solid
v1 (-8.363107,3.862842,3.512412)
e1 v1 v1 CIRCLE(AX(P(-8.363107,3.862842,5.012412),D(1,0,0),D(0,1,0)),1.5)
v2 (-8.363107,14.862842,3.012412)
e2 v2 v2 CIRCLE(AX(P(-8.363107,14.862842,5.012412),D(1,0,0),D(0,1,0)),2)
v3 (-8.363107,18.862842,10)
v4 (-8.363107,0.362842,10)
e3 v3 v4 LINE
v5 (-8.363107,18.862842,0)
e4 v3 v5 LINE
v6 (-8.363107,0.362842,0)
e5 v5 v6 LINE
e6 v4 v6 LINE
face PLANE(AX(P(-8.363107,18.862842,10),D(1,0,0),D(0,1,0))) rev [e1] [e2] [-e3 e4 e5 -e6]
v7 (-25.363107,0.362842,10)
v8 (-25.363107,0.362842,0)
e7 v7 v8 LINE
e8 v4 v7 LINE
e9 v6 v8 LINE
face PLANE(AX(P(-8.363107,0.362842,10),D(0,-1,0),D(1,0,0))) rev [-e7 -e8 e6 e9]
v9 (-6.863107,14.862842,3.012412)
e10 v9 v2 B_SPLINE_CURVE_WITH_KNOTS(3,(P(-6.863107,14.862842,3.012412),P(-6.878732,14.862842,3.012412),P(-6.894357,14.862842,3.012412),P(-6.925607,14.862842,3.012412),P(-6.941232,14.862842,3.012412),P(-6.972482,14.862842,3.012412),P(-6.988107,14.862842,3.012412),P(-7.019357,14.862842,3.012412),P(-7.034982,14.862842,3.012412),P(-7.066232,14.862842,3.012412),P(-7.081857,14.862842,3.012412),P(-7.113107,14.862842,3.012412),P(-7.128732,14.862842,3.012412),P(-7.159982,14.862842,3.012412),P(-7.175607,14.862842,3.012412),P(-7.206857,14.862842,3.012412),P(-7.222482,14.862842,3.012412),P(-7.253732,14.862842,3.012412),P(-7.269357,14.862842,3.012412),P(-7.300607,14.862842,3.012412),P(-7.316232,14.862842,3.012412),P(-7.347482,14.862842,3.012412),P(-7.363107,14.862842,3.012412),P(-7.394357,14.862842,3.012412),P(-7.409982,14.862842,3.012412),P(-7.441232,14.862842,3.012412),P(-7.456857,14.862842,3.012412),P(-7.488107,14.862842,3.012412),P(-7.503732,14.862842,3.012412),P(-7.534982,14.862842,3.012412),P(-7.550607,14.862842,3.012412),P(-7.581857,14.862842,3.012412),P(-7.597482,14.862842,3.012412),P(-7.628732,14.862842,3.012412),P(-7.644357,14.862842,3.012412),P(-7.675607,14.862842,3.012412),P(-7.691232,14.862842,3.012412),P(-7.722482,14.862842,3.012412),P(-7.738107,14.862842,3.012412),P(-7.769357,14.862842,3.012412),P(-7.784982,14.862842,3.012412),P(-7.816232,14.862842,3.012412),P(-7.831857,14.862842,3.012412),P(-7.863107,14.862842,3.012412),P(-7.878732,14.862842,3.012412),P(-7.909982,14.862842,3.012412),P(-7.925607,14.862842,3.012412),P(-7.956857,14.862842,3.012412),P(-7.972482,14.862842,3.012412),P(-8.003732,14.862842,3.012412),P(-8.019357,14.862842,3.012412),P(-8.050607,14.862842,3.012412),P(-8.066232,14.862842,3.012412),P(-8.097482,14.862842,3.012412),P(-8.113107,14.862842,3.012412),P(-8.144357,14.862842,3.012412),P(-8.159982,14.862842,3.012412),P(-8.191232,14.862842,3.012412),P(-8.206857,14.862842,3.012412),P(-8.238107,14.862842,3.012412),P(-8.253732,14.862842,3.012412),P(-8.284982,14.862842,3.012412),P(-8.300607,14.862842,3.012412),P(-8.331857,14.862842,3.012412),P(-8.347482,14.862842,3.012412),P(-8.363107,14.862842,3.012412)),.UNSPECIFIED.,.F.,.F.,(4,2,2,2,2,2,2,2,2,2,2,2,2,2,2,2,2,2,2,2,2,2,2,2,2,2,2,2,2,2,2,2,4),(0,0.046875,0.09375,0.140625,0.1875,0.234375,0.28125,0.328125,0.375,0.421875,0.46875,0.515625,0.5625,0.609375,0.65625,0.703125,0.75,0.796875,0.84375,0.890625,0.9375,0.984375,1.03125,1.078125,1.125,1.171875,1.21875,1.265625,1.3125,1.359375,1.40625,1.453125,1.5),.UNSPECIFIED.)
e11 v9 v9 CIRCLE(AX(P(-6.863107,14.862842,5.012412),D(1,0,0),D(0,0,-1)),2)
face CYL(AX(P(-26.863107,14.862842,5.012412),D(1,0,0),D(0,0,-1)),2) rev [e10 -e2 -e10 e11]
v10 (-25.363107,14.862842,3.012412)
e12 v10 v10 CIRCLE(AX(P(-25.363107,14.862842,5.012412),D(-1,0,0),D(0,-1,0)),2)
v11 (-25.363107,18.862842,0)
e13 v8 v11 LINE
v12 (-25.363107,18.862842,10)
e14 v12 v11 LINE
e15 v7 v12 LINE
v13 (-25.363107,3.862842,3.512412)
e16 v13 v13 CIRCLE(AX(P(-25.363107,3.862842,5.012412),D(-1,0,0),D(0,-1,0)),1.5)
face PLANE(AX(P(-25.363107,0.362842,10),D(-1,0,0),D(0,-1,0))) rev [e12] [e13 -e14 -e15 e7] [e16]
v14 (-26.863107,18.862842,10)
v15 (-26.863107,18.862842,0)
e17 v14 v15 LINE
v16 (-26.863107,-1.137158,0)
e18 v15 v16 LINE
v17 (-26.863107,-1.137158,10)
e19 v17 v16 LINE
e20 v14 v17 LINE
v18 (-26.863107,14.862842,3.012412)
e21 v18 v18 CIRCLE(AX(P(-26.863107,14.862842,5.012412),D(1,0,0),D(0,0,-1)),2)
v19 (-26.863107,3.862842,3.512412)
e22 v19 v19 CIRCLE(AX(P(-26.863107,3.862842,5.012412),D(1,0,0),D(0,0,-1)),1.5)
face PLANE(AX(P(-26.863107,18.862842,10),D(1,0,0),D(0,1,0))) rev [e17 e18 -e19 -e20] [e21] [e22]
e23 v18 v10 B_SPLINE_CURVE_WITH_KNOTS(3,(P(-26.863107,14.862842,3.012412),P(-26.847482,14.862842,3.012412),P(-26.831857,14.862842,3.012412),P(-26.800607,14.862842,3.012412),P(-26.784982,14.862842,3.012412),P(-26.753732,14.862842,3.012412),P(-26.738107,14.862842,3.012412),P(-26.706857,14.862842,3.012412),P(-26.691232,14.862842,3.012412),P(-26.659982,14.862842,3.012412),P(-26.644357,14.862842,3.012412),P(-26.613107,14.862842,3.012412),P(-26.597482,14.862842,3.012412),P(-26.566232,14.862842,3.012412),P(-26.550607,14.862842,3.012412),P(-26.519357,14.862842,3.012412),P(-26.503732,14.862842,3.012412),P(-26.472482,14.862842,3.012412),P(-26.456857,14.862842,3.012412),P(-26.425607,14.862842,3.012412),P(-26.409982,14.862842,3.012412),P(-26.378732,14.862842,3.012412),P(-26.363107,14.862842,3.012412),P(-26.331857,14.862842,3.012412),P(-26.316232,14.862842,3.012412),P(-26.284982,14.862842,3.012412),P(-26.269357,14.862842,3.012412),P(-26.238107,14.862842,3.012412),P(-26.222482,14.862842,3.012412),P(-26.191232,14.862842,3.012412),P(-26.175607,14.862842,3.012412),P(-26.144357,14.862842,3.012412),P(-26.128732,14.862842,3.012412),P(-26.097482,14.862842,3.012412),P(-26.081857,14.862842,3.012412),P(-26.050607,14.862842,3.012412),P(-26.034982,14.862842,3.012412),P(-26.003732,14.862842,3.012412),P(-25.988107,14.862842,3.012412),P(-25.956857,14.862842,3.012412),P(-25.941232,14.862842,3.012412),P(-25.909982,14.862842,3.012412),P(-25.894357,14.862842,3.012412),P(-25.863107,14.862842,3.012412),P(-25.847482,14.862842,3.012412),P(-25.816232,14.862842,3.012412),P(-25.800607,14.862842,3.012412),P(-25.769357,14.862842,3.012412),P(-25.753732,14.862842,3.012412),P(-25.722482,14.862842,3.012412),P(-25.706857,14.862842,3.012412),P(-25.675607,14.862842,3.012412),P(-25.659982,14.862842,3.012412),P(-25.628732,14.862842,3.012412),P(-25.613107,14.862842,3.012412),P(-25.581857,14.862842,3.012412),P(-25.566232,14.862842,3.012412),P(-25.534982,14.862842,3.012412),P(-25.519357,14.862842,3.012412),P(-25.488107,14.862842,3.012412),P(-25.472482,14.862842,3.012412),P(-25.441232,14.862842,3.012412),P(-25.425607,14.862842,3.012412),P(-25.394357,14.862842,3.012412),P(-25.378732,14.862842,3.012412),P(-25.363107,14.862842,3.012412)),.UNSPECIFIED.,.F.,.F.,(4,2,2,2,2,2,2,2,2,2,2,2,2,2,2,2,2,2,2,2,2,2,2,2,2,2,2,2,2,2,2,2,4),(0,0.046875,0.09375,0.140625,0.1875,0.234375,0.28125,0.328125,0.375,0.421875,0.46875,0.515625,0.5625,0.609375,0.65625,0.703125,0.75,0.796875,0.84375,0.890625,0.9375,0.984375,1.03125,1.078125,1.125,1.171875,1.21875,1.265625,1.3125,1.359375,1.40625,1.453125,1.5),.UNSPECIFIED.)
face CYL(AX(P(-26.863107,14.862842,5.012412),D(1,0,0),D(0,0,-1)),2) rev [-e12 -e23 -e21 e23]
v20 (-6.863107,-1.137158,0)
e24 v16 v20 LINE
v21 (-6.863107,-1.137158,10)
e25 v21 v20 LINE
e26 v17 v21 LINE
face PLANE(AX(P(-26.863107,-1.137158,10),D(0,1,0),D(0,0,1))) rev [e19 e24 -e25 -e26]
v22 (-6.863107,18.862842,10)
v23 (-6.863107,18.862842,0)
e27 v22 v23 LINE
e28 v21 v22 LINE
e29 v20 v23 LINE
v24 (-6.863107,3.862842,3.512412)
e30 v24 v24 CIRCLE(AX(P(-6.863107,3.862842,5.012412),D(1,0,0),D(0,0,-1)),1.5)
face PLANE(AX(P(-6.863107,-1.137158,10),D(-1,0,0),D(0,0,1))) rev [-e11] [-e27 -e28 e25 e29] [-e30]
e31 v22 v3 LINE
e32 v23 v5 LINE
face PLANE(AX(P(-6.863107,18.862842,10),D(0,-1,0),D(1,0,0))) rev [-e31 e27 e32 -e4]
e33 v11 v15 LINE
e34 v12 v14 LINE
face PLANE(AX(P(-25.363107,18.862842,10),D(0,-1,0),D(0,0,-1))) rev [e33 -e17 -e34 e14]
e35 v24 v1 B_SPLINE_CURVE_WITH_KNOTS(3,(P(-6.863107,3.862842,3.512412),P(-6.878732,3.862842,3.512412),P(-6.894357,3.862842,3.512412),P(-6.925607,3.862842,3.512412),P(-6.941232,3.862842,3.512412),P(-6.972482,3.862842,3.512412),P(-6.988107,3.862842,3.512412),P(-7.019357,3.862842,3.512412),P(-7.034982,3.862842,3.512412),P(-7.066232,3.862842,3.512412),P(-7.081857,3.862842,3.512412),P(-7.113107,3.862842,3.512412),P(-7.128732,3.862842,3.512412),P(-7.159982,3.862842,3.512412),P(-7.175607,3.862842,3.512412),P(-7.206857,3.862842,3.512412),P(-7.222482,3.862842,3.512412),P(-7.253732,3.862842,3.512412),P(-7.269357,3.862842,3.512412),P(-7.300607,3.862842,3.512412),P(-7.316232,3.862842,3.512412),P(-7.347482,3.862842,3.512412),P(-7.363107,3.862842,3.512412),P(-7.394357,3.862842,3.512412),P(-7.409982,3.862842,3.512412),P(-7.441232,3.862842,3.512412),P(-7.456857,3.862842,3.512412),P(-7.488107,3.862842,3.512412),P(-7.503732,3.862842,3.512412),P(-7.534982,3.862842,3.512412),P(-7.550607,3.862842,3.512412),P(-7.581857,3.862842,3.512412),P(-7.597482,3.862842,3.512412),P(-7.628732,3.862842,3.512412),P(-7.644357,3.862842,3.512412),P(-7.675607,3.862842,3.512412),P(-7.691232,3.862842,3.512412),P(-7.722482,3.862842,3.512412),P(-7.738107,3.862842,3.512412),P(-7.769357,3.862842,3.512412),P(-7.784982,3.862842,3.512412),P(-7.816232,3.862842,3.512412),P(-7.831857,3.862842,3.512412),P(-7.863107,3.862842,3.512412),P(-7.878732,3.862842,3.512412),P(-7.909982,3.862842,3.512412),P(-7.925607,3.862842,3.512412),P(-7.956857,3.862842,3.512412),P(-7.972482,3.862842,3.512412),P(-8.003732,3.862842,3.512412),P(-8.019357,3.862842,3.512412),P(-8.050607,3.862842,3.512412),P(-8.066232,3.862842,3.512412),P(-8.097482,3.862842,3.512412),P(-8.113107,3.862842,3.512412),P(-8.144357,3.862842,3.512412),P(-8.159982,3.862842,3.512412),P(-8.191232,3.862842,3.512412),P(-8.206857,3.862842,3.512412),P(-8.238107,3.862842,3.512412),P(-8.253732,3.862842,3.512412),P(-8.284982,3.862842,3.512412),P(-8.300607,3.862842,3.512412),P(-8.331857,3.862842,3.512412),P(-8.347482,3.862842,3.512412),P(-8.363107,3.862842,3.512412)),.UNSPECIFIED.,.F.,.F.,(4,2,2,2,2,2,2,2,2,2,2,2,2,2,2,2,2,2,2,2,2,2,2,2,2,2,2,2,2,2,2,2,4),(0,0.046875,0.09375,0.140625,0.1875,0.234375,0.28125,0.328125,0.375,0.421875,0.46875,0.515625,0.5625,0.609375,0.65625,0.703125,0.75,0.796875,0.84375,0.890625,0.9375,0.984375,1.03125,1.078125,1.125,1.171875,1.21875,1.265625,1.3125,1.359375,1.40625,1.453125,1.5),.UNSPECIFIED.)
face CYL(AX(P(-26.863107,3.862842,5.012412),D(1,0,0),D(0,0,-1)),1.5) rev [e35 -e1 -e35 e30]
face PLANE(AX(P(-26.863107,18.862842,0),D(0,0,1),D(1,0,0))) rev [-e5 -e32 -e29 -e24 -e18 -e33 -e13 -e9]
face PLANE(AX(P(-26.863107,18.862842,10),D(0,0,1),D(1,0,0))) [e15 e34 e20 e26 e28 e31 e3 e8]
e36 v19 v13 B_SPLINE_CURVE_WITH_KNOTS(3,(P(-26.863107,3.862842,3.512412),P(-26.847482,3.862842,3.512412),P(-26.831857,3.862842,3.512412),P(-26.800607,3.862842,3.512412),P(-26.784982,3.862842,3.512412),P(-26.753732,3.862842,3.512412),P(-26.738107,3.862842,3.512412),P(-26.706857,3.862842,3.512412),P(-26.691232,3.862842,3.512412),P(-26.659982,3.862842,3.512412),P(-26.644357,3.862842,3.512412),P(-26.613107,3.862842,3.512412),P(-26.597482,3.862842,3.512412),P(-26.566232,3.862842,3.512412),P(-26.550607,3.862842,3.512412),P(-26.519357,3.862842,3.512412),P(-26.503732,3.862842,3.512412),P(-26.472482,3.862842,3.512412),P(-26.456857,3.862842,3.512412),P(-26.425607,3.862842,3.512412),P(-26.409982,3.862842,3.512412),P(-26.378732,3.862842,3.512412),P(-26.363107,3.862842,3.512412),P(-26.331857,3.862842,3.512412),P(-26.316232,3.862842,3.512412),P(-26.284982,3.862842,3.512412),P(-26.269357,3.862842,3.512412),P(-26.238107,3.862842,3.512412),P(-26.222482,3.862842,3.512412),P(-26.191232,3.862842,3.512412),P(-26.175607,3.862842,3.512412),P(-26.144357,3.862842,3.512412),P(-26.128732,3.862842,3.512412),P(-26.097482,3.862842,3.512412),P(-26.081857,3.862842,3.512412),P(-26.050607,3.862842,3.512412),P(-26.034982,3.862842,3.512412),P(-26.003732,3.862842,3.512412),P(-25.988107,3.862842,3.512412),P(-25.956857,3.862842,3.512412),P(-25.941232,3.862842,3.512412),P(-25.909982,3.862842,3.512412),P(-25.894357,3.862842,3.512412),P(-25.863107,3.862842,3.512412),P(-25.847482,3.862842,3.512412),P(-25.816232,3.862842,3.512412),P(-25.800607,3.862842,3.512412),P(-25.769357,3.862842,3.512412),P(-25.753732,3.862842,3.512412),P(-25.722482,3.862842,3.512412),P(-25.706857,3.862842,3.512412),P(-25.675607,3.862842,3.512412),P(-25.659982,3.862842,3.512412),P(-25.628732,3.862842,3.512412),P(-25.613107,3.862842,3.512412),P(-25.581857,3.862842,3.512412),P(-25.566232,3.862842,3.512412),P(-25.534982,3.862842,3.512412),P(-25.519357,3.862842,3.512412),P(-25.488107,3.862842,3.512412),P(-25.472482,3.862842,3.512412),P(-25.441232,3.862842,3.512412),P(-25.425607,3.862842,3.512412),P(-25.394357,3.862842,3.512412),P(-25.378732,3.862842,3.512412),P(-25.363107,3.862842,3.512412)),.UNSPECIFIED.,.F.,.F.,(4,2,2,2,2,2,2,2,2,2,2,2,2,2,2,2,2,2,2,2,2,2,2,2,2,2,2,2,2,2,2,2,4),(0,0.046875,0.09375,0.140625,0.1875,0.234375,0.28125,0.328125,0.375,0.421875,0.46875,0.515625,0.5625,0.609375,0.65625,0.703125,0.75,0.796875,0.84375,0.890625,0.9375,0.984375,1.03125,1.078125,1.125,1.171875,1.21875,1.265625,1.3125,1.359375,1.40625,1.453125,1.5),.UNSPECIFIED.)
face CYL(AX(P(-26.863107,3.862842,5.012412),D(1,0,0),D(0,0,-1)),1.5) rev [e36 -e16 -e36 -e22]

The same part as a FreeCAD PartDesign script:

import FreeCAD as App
import Part
import Sketcher
from FreeCAD import Vector


def add_polygon(sketch, points):
    """Adds a closed chain of lines whose ends are joined by coincident constraints."""
    first, n = sketch.GeometryCount, len(points)
    for a, b in zip(points, points[1:] + points[:1]):
        sketch.addGeometry(Part.LineSegment(App.Vector(*a, 0), App.Vector(*b, 0)), False)
    for i in range(n):
        sketch.addConstraint(Sketcher.Constraint("Coincident", first + i, 2, first + (i + 1) % n, 1))

doc = App.newDocument("Part")
body = doc.addObject("PartDesign::Body", "Body")

# Sketch on XY plane
sketch1 = body.newObject("Sketcher::SketchObject", "Sketch")
sketch1.AttachmentSupport = (doc.getObject("XY_Plane"), [""])
sketch1.MapMode = "FlatFace"
add_polygon(sketch1, [(-26.9, 18.9), (-26.9, -1.1), (-6.9, -1.1), (-6.9, 18.9), (-8.4, 18.9), (-8.4, 0.4), (-25.4, 0.4), (-25.4, 18.9)])  # lines 0-7
sketch1.addConstraint(Sketcher.Constraint("Vertical", 0))
sketch1.addConstraint(Sketcher.Constraint("Horizontal", 1))
sketch1.addConstraint(Sketcher.Constraint("Vertical", 2))
sketch1.addConstraint(Sketcher.Constraint("Horizontal", 3))
sketch1.addConstraint(Sketcher.Constraint("Vertical", 4))
sketch1.addConstraint(Sketcher.Constraint("Horizontal", 5))
sketch1.addConstraint(Sketcher.Constraint("Vertical", 6))
sketch1.addConstraint(Sketcher.Constraint("Horizontal", 7))
sketch1.addConstraint(Sketcher.Constraint("Horizontal", 3, 2, 6, 2))
sketch1.addConstraint(Sketcher.Constraint("Equal", 3, 7))
sketch1.addConstraint(Sketcher.Constraint("Equal", 1, 0))
sketch1.addConstraint(Sketcher.Constraint("DistanceX", 1, 1, 1, 2, 20.0))
sketch1.addConstraint(Sketcher.Constraint("DistanceX", 5, 2, 5, 1, 17.0))
sketch1.addConstraint(Sketcher.Constraint("DistanceY", 4, 2, 4, 1, 18.5))
sketch1.addConstraint(Sketcher.Constraint("DistanceX", 0, 2, -1, 1, 26.863107))
sketch1.addConstraint(Sketcher.Constraint("DistanceY", 0, 2, -1, 1, 1.137158))
pad1 = body.newObject("PartDesign::Pad", "Pad")
pad1.Profile = sketch1
pad1.Length = 10

# Sketch on YZ plane
sketch2 = body.newObject("Sketcher::SketchObject", "Sketch001")
sketch2.AttachmentSupport = (doc.getObject("YZ_Plane"), [""])
sketch2.MapMode = "FlatFace"
sketch2.AttachmentOffset = App.Placement(Vector(0, 0, -6.863107), App.Rotation())
sketch2.addGeometry(Part.Circle(Vector(14.9, 5, 0), Vector(0, 0, 1), 2), False)
sketch2.addGeometry(Part.Circle(Vector(3.9, 5, 0), Vector(0, 0, 1), 1.5), False)
sketch2.addConstraint(Sketcher.Constraint("Horizontal", 0, 3, 1, 3))
sketch2.addConstraint(Sketcher.Constraint("Diameter", 0, 4.0))
sketch2.addConstraint(Sketcher.Constraint("Diameter", 1, 3.0))
sketch2.addConstraint(Sketcher.Constraint("DistanceX", 1, 3, 0, 3, 11.0))
sketch2.addConstraint(Sketcher.Constraint("DistanceY", -1, 1, 0, 3, 5.012412))
sketch2.addConstraint(Sketcher.Constraint("DistanceX", -1, 1, 0, 3, 14.862842))
pocket1 = body.newObject("PartDesign::Pocket", "Pocket")
pocket1.Profile = sketch2
pocket1.Type = "ThroughAll"

doc.recompute()
